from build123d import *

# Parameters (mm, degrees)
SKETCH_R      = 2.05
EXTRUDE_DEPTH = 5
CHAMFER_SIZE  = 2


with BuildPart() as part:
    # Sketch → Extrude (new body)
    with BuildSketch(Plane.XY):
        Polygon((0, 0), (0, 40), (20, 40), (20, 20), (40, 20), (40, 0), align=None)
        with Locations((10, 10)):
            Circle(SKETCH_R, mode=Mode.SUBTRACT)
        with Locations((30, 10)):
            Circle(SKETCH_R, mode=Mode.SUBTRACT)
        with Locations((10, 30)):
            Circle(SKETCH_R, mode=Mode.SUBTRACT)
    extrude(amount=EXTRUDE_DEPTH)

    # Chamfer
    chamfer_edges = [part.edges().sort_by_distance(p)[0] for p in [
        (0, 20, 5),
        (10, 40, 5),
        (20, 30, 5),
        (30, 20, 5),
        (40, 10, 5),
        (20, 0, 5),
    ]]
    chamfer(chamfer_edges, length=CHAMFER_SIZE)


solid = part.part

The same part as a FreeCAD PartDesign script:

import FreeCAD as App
import Part
import Sketcher
Q = App.Units.Quantity


def edges_at(feature, points):
    """Names of the edges that pass closest to the given points."""
    edges = feature.Shape.Edges
    near = lambda p: min(range(len(edges)), key=lambda i: edges[i].distToShape(Part.Vertex(*p))[0])
    return sorted({f"Edge{near(p) + 1}" for p in points})


def add_polygon(sketch, points):
    """Adds a closed chain of lines whose ends are joined by coincident constraints."""
    first, n = sketch.GeometryCount, len(points)
    for a, b in zip(points, points[1:] + points[:1]):
        sketch.addGeometry(Part.LineSegment(App.Vector(*a, 0), App.Vector(*b, 0)), False)
    for i in range(n):
        sketch.addConstraint(Sketcher.Constraint("Coincident", first + i, 2, first + (i + 1) % n, 1))

doc = App.newDocument("Part")
params = doc.addObject("Spreadsheet::Sheet", "Params")
for row, (alias, value) in enumerate([
    ("sketch1_diameter", "4.1 mm"),
    ("sketch1_width", "40 mm"),
    ("pad1_length", "5 mm"),
    ("chamfer_size", "2 mm"),
], start=1):
    params.set(f"A{row}", alias)
    params.set(f"B{row}", "=" + value)
    params.setAlias(f"B{row}", alias)

body = doc.addObject("PartDesign::Body", "Body")

# Sketch on XY plane
sketch1 = body.newObject("Sketcher::SketchObject", "Sketch")
sketch1.AttachmentSupport = (doc.getObject("XY_Plane"), [""])
sketch1.MapMode = "FlatFace"
add_polygon(sketch1, [(0, 40), (0, 0), (40, 0), (40, 20), (20, 20), (20, 40)])  # lines 0-5
sketch1.addGeometry(Part.Circle(App.Vector(30, 10, 0), App.Vector(0, 0, 1), 2), False)  # 6
sketch1.addGeometry(Part.Circle(App.Vector(10, 10, 0), App.Vector(0, 0, 1), 2), False)  # 7
sketch1.addGeometry(Part.Circle(App.Vector(10, 30, 0), App.Vector(0, 0, 1), 2), False)  # 8
sketch1.addConstraint([
    Sketcher.Constraint("Vertical", 0),
    Sketcher.Constraint("Horizontal", 1),
    Sketcher.Constraint("Vertical", 2),
    Sketcher.Constraint("Horizontal", 3),
    Sketcher.Constraint("Vertical", 4),
    Sketcher.Constraint("Horizontal", 5),
    Sketcher.Constraint("Coincident", 0, 2, -1, 1),
    Sketcher.Constraint("Equal", 6, 7),
    Sketcher.Constraint("Equal", 7, 8),
    Sketcher.Constraint("Horizontal", 6, 3, 7, 3),
    Sketcher.Constraint("Vertical", 7, 3, 8, 3),
    Sketcher.Constraint("Equal", 3, 5),
    Sketcher.Constraint("Equal", 1, 0),
    Sketcher.Constraint("Equal", 5, 2),
    Sketcher.Constraint("Diameter", 6, Q("4.1 mm")),
    Sketcher.Constraint("DistanceX", 1, 1, 1, 2, Q("40 mm")),
    Sketcher.Constraint("DistanceX", -1, 1, 6, 3, Q("30 mm")),
    Sketcher.Constraint("DistanceY", -1, 1, 6, 3, Q("10 mm")),
    Sketcher.Constraint("DistanceX", -1, 1, 7, 3, Q("10 mm")),
    Sketcher.Constraint("DistanceY", -1, 1, 8, 3, Q("30 mm")),
])
sketch1.setExpression("Constraints[20]", "Params.sketch1_diameter")
sketch1.setExpression("Constraints[21]", "Params.sketch1_width")
pad1 = body.newObject("PartDesign::Pad", "Pad")
pad1.Profile = sketch1
pad1.setExpression("Length", "Params.pad1_length")
doc.recompute()

chamfer = body.newObject("PartDesign::Chamfer", "Chamfer")
chamfer.Base = (pad1, edges_at(pad1, [
    (0, 20, 5),
    (10, 40, 5),
    (20, 30, 5),
    (30, 20, 5),
    (40, 10, 5),
    (20, 0, 5),
]))
chamfer.setExpression("Size", "Params.chamfer_size")

doc.recompute()
